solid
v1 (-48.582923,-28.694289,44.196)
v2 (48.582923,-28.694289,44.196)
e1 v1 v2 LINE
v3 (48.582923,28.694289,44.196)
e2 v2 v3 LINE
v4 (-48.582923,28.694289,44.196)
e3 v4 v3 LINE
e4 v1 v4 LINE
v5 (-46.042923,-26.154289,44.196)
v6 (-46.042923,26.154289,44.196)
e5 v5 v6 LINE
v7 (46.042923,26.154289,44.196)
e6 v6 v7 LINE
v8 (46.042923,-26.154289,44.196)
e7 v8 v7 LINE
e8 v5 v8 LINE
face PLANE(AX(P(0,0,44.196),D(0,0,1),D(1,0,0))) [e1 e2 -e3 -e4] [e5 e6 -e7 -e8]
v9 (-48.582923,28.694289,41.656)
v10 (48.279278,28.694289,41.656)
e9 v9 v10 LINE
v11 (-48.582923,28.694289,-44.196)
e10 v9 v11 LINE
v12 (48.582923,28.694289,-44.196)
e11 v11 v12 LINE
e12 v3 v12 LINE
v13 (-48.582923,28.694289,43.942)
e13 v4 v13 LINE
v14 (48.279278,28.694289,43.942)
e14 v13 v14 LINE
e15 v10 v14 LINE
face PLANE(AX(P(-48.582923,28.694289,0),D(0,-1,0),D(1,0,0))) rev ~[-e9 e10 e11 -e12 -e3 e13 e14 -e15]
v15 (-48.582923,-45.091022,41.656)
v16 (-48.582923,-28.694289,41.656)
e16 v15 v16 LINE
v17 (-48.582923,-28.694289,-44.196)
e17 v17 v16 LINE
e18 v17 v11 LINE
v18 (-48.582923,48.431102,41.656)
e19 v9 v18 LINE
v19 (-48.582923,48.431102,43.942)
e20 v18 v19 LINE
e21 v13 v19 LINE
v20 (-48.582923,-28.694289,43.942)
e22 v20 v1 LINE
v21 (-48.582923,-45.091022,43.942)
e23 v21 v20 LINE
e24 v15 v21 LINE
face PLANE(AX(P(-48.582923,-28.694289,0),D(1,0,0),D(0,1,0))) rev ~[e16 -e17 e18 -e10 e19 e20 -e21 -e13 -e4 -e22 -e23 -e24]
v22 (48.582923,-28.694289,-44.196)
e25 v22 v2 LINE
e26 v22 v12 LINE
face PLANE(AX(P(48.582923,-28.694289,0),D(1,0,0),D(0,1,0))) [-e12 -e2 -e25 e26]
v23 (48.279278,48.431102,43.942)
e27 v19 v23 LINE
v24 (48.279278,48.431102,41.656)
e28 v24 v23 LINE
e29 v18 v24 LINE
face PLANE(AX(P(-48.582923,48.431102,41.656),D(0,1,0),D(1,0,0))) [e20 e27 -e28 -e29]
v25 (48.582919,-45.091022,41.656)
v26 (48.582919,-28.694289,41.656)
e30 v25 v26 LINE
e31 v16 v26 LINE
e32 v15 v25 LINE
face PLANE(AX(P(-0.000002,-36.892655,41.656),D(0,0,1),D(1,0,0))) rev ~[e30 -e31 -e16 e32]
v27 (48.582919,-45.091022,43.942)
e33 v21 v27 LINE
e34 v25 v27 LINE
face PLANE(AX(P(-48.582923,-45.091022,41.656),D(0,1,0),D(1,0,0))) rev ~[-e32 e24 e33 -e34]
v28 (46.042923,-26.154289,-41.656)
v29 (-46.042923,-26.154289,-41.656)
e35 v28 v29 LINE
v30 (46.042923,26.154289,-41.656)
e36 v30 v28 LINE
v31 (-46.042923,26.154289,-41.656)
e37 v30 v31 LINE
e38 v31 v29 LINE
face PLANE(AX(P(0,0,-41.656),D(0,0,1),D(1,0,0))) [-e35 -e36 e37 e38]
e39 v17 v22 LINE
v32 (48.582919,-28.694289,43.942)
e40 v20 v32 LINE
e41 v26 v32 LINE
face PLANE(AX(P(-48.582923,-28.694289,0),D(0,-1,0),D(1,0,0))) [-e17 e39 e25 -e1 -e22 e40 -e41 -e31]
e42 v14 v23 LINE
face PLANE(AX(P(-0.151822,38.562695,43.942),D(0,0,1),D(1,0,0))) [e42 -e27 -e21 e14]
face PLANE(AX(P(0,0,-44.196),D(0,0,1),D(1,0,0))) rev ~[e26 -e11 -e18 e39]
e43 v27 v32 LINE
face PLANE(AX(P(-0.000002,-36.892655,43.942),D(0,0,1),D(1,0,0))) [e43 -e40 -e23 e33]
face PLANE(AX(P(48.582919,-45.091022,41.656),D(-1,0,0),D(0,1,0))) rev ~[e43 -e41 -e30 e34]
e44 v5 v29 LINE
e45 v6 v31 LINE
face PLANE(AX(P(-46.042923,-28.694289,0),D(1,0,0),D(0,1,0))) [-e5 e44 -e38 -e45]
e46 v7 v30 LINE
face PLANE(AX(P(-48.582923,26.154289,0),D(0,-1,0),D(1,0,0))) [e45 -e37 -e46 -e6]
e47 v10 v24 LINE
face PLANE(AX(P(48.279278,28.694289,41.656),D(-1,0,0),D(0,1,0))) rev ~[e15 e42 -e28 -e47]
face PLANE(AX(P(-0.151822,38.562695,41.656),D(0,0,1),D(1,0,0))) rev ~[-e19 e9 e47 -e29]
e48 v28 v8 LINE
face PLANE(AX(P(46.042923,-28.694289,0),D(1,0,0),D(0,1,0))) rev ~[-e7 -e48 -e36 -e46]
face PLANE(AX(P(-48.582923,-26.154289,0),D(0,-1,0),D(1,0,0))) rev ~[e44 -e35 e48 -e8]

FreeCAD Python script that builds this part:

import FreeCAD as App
import Part
import Sketcher
from FreeCAD import Vector
Q = App.Units.Quantity


def faces_at(feature, points):
    """Names of the faces that lie closest to the given points."""
    faces = feature.Shape.Faces
    near = lambda p: min(range(len(faces)), key=lambda i: faces[i].distToShape(Part.Vertex(*p))[0])
    return sorted({f"Face{near(p) + 1}" for p in points})

doc = App.newDocument("Part")
body = doc.addObject("PartDesign::Body", "Body")

sketch1 = doc.addObject("Sketcher::SketchObject", "Sketch")
body.addObject(sketch1)
sketch1.AttachmentSupport = (doc.XY_Plane, [""])
sketch1.MapMode = "FlatFace"
sketch1.addGeometry([
    Part.LineSegment(Vector(-49, 29, 0), Vector(-49, -29, 0)),
    Part.LineSegment(Vector(-49, -29, 0), Vector(49, -29, 0)),
    Part.LineSegment(Vector(49, -29, 0), Vector(49, 29, 0)),
    Part.LineSegment(Vector(49, 29, 0), Vector(-49, 29, 0)),
], False)
sketch1.addConstraint([
    Sketcher.Constraint("Coincident", 0, 2, 1, 1),
    Sketcher.Constraint("Coincident", 1, 2, 2, 1),
    Sketcher.Constraint("Coincident", 2, 2, 3, 1),
    Sketcher.Constraint("Coincident", 3, 2, 0, 1),
    Sketcher.Constraint("Vertical", 0),
    Sketcher.Constraint("Horizontal", 1),
    Sketcher.Constraint("Vertical", 2),
    Sketcher.Constraint("Horizontal", 3),
    Sketcher.Constraint("Symmetric", 0, 2, 2, 2, -1, 1),
    Sketcher.Constraint("DistanceX", 1, 1, 1, 2, Q("97.165845 mm")),
    Sketcher.Constraint("DistanceY", 0, 2, 0, 1, Q("57.388578 mm")),
])
pad1 = doc.addObject("PartDesign::Pad", "Pad")
body.addObject(pad1)
pad1.Profile = sketch1
pad1.Type = "TwoLengths"
pad1.Length = Q("1.74 in")
pad1.Length2 = Q("1.74 in")
doc.recompute()

thickness = doc.addObject("PartDesign::Thickness", "Thickness")
body.addObject(thickness)
thickness.Base = (pad1, faces_at(pad1, [(0, 0, 44.196)]))
thickness.Value = Q("0.1 in")
thickness.Reversed = True
thickness.Join = "Arc"

sketch2 = doc.addObject("Sketcher::SketchObject", "Sketch001")
body.addObject(sketch2)
sketch2.AttachmentSupport = (doc.XY_Plane, [""])
sketch2.MapMode = "FlatFace"
sketch2.AttachmentOffset = App.Placement(Vector(0, 0, 1.64 * 25.4), App.Rotation())
sketch2.addGeometry([
    Part.LineSegment(Vector(-49, 48, 0), Vector(-49, 29, 0)),
    Part.LineSegment(Vector(-49, 29, 0), Vector(48, 29, 0)),
    Part.LineSegment(Vector(48, 29, 0), Vector(48, 48, 0)),
    Part.LineSegment(Vector(48, 48, 0), Vector(-49, 48, 0)),
    Part.LineSegment(Vector(-49, -29, 0), Vector(-49, -45, 0)),
    Part.LineSegment(Vector(-49, -45, 0), Vector(49, -45, 0)),
    Part.LineSegment(Vector(49, -45, 0), Vector(49, -29, 0)),
    Part.LineSegment(Vector(49, -29, 0), Vector(-49, -29, 0)),
], False)
sketch2.addConstraint([
    Sketcher.Constraint("Coincident", 0, 2, 1, 1),
    Sketcher.Constraint("Coincident", 1, 2, 2, 1),
    Sketcher.Constraint("Coincident", 2, 2, 3, 1),
    Sketcher.Constraint("Coincident", 3, 2, 0, 1),
    Sketcher.Constraint("Coincident", 4, 2, 5, 1),
    Sketcher.Constraint("Coincident", 5, 2, 6, 1),
    Sketcher.Constraint("Coincident", 6, 2, 7, 1),
    Sketcher.Constraint("Coincident", 7, 2, 4, 1),
    Sketcher.Constraint("Vertical", 0),
    Sketcher.Constraint("Horizontal", 1),
    Sketcher.Constraint("Vertical", 2),
    Sketcher.Constraint("Horizontal", 3),
    Sketcher.Constraint("Vertical", 4),
    Sketcher.Constraint("Horizontal", 5),
    Sketcher.Constraint("Vertical", 6),
    Sketcher.Constraint("Horizontal", 7),
    Sketcher.Constraint("Symmetric", 0, 2, 6, 2, -1, 1),
    Sketcher.Constraint("Vertical", 3, 2, 4, 2),
    Sketcher.Constraint("DistanceX", 1, 1, 1, 2, Q("96.862201 mm")),
    Sketcher.Constraint("DistanceX", 5, 1, 5, 2, Q("97.165842 mm")),
    Sketcher.Constraint("DistanceY", 0, 2, 0, 1, Q("19.736813 mm")),
    Sketcher.Constraint("DistanceY", 4, 2, 4, 1, Q("16.396733 mm")),
    Sketcher.Constraint("DistanceY", -1, 1, 0, 2, Q("28.694289 mm")),
])
pad2 = doc.addObject("PartDesign::Pad", "Pad001")
body.addObject(pad2)
pad2.Profile = sketch2
pad2.Length = Q("0.09 in")

doc.recompute()
